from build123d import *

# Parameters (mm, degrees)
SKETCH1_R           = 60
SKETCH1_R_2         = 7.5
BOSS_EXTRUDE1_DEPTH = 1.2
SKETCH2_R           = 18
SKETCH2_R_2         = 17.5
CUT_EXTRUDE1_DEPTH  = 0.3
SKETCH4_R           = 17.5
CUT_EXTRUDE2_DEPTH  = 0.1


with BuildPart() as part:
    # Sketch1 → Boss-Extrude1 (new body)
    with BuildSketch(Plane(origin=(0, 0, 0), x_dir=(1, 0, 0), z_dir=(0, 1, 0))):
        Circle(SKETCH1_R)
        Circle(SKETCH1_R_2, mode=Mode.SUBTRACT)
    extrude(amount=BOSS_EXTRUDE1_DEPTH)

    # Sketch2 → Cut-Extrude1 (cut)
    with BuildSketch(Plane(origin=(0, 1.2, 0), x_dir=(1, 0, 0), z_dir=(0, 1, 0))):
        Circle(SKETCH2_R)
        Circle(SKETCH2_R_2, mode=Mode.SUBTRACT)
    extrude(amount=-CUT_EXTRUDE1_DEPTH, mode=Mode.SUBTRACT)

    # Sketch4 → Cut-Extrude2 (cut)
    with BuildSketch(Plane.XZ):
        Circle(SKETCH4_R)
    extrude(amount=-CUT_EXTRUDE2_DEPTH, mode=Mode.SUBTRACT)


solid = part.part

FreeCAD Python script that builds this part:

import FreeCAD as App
import Part
import Sketcher
Q = App.Units.Quantity

doc = App.newDocument("Part")
body = doc.addObject("PartDesign::Body", "Body")

# Sketch on XZ plane
sketch1 = body.newObject("Sketcher::SketchObject", "Sketch")
sketch1.AttachmentSupport = (doc.getObject("XZ_Plane"), [""])
sketch1.MapMode = "FlatFace"
sketch1.addGeometry([
    Part.Circle(App.Vector(0, 0, 0), App.Vector(0, 0, 1), 60),
    Part.Circle(App.Vector(0, 0, 0), App.Vector(0, 0, 1), 8),
], False)
sketch1.addConstraint([
    Sketcher.Constraint("Coincident", 0, 3, -1, 1),
    Sketcher.Constraint("Coincident", 1, 3, -1, 1),
    Sketcher.Constraint("Diameter", 0, Q("120 mm")),
    Sketcher.Constraint("Diameter", 1, Q("15 mm")),
])
pad1 = body.newObject("PartDesign::Pad", "Pad")
pad1.Profile = sketch1
pad1.Length = 1.2
pad1.Reversed = True

# Sketch on XZ plane
sketch2 = body.newObject("Sketcher::SketchObject", "Sketch001")
sketch2.AttachmentSupport = (doc.getObject("XZ_Plane"), [""])
sketch2.MapMode = "FlatFace"
sketch2.AttachmentOffset = App.Placement(App.Vector(0, 0, -1.2), App.Rotation())
sketch2.addGeometry([
    Part.Circle(App.Vector(0, 0, 0), App.Vector(0, 0, 1), 18),
    Part.Circle(App.Vector(0, 0, 0), App.Vector(0, 0, 1), 18),
], False)
sketch2.addConstraint([
    Sketcher.Constraint("Coincident", 0, 3, -1, 1),
    Sketcher.Constraint("Coincident", 1, 3, -1, 1),
    Sketcher.Constraint("Diameter", 0, Q("36 mm")),
    Sketcher.Constraint("Diameter", 1, Q("35 mm")),
])
pocket1 = body.newObject("PartDesign::Pocket", "Pocket")
pocket1.Profile = sketch2
pocket1.Length = 0.3
pocket1.Reversed = True

# Sketch on XZ plane
sketch3 = body.newObject("Sketcher::SketchObject", "Sketch002")
sketch3.AttachmentSupport = (doc.getObject("XZ_Plane"), [""])
sketch3.MapMode = "FlatFace"
sketch3.addGeometry(Part.Circle(App.Vector(0, 0, 0), App.Vector(0, 0, 1), 18), False)
sketch3.addConstraint([
    Sketcher.Constraint("Coincident", 0, 3, -1, 1),
    Sketcher.Constraint("Diameter", 0, Q("35 mm")),
])
pocket2 = body.newObject("PartDesign::Pocket", "Pocket001")
pocket2.Profile = sketch3
pocket2.Length = 0.1

doc.recompute()
